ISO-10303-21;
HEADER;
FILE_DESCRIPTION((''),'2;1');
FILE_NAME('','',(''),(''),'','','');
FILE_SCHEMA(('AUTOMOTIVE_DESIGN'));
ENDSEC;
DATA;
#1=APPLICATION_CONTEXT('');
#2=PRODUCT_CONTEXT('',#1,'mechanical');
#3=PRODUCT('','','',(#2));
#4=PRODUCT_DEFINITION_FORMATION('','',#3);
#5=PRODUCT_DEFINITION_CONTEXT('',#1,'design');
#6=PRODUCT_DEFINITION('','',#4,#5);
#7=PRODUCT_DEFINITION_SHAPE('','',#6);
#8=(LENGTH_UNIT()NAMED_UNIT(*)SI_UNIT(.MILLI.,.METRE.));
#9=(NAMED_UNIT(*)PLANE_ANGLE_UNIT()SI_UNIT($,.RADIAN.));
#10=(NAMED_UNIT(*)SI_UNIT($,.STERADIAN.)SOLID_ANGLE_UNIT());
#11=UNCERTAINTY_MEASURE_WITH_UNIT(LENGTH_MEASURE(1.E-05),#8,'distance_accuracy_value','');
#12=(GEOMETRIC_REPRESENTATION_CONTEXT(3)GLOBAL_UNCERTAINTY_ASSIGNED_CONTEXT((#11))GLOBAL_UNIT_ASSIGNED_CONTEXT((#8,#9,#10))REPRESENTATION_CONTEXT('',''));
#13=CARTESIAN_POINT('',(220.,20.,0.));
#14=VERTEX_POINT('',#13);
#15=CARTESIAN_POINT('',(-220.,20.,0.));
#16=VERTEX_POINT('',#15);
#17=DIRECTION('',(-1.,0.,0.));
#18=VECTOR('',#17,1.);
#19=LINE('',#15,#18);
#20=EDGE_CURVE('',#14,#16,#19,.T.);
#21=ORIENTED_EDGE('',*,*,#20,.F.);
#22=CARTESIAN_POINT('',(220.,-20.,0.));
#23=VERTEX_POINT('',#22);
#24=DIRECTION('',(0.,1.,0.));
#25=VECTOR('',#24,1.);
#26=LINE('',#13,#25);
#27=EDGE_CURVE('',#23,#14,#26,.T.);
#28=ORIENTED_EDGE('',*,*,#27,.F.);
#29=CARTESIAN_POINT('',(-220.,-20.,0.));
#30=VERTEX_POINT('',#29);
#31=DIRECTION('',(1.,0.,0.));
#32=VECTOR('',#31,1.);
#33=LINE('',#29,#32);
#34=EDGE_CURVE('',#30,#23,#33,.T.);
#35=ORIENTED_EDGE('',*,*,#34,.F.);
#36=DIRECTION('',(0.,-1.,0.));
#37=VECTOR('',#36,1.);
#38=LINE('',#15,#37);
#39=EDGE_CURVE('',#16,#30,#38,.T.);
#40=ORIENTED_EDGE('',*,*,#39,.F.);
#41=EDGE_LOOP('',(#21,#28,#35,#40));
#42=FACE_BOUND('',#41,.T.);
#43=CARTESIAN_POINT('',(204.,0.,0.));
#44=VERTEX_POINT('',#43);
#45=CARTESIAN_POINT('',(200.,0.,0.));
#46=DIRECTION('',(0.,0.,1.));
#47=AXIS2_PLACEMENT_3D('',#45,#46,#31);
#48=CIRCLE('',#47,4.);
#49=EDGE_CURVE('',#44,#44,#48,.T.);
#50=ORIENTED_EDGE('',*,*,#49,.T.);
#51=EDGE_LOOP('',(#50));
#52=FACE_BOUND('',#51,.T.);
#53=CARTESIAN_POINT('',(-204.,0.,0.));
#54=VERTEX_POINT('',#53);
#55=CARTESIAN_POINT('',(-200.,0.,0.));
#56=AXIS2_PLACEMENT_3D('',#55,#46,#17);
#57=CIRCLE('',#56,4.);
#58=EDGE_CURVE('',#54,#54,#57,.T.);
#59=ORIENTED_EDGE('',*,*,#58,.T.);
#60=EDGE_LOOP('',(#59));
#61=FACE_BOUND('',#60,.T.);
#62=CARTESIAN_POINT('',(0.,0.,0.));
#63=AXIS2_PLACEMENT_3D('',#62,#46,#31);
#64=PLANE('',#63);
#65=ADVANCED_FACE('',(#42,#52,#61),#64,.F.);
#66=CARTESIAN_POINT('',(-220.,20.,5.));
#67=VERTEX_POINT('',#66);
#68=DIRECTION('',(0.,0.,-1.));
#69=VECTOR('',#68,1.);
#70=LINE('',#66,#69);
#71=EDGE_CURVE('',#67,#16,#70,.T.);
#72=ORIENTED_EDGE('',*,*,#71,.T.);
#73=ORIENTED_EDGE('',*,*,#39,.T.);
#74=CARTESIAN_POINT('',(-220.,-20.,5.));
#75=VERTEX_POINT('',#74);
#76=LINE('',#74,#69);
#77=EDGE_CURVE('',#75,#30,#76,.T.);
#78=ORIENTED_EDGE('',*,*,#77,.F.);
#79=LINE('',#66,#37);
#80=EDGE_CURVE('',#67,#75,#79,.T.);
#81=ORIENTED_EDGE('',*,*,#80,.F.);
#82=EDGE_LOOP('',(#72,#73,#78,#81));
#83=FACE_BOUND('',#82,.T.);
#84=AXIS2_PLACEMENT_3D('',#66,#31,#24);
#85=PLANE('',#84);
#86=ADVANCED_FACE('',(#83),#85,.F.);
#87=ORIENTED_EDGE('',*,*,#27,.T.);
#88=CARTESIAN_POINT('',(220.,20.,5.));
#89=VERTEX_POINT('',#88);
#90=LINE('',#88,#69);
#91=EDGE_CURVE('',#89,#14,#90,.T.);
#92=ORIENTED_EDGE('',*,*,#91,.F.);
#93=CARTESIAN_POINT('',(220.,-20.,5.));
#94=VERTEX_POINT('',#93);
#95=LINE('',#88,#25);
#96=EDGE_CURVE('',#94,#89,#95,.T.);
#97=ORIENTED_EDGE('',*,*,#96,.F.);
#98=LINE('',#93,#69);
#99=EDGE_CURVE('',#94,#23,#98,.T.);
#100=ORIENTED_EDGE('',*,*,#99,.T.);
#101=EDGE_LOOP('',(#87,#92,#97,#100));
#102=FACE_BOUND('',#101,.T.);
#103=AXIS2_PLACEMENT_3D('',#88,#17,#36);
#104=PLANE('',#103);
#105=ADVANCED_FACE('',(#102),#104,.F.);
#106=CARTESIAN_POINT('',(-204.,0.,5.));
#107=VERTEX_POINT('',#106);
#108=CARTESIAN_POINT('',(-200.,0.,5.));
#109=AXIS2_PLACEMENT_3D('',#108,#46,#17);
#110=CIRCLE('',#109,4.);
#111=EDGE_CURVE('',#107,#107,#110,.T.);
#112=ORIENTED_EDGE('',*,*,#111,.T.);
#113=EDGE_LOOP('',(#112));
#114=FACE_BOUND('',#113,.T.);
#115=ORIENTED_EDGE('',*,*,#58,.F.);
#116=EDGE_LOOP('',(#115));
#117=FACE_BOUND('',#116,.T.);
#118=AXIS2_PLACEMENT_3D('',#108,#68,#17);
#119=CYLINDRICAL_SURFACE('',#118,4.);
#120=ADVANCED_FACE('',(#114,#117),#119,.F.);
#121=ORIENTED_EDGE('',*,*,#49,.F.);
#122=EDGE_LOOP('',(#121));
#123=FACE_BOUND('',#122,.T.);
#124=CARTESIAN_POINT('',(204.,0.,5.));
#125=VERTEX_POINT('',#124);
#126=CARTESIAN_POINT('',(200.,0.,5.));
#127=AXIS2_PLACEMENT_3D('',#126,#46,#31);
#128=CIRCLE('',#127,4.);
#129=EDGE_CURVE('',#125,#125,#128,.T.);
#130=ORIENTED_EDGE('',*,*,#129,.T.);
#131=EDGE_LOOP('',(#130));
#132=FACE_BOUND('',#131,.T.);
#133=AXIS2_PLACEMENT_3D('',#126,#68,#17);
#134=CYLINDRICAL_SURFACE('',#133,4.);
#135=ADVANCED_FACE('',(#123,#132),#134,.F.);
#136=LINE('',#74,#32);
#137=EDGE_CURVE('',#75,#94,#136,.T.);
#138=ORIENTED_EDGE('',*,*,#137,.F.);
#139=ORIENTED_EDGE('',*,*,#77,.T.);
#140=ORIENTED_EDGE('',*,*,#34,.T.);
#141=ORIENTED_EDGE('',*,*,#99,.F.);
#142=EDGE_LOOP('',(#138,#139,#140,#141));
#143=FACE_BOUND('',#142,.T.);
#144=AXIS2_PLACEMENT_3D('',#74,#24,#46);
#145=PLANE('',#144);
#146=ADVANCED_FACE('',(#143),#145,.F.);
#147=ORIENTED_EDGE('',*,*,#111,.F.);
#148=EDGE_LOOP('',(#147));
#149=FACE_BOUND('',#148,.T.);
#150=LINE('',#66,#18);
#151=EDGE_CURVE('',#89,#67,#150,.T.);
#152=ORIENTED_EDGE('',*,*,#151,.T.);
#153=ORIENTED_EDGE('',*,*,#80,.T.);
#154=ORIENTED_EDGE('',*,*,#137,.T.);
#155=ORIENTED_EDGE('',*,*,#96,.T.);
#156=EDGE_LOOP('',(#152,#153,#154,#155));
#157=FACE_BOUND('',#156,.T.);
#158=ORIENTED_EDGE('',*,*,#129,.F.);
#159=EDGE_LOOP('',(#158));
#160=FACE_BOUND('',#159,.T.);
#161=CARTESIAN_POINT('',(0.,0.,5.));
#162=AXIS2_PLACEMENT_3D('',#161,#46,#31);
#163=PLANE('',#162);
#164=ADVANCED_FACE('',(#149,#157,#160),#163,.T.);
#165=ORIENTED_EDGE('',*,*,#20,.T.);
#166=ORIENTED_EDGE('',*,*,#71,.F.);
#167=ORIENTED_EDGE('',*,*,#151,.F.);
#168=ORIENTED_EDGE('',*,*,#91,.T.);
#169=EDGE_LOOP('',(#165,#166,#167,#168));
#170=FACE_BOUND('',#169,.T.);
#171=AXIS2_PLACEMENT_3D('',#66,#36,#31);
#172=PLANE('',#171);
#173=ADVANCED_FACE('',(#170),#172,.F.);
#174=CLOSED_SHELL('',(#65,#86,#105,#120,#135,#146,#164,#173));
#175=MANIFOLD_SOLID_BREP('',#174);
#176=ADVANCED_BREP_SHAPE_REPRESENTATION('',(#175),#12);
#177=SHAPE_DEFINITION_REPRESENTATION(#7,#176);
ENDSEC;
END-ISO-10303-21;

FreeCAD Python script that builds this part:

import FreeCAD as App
import Part
import Sketcher
Q = App.Units.Quantity


def add_polygon(sketch, points):
    """Adds a closed chain of lines whose ends are joined by coincident constraints."""
    first, n = sketch.GeometryCount, len(points)
    for a, b in zip(points, points[1:] + points[:1]):
        sketch.addGeometry(Part.LineSegment(App.Vector(*a, 0), App.Vector(*b, 0)), False)
    for i in range(n):
        sketch.addConstraint(Sketcher.Constraint("Coincident", first + i, 2, first + (i + 1) % n, 1))

doc = App.newDocument("Part")
body = doc.addObject("PartDesign::Body", "Body")

# Sketch on XY plane
sketch1 = doc.addObject("Sketcher::SketchObject", "Sketch")
body.addObject(sketch1)
sketch1.AttachmentSupport = (doc.XY_Plane, [""])
sketch1.MapMode = "FlatFace"
add_polygon(sketch1, [(-220, 20), (-220, -20), (220, -20), (220, 20)])  # lines 0-3
sketch1.addGeometry(Part.Circle(App.Vector(-200, 0, 0), App.Vector(0, 0, 1), 4), False)  # 4
sketch1.addGeometry(Part.Circle(App.Vector(200, 0, 0), App.Vector(0, 0, 1), 4), False)  # 5
sketch1.addConstraint([
    Sketcher.Constraint("Vertical", 0),
    Sketcher.Constraint("Horizontal", 1),
    Sketcher.Constraint("Vertical", 2),
    Sketcher.Constraint("Horizontal", 3),
    Sketcher.Constraint("Equal", 4, 5),
    Sketcher.Constraint("Symmetric", 4, 3, 5, 3, -1, 1),
    Sketcher.Constraint("Symmetric", 0, 2, 2, 2, -1, 1),
    Sketcher.Constraint("PointOnObject", 4, 3, -1),
    Sketcher.Constraint("Diameter", 4, Q("8 mm")),
    Sketcher.Constraint("DistanceX", 1, 1, 1, 2, Q("440 mm")),
    Sketcher.Constraint("DistanceY", 0, 2, 0, 1, Q("40 mm")),
    Sketcher.Constraint("DistanceX", 4, 3, -1, 1, Q("200 mm")),
])
pad1 = doc.addObject("PartDesign::Pad", "Pad")
body.addObject(pad1)
pad1.Profile = sketch1
pad1.Length = 5

doc.recompute()
